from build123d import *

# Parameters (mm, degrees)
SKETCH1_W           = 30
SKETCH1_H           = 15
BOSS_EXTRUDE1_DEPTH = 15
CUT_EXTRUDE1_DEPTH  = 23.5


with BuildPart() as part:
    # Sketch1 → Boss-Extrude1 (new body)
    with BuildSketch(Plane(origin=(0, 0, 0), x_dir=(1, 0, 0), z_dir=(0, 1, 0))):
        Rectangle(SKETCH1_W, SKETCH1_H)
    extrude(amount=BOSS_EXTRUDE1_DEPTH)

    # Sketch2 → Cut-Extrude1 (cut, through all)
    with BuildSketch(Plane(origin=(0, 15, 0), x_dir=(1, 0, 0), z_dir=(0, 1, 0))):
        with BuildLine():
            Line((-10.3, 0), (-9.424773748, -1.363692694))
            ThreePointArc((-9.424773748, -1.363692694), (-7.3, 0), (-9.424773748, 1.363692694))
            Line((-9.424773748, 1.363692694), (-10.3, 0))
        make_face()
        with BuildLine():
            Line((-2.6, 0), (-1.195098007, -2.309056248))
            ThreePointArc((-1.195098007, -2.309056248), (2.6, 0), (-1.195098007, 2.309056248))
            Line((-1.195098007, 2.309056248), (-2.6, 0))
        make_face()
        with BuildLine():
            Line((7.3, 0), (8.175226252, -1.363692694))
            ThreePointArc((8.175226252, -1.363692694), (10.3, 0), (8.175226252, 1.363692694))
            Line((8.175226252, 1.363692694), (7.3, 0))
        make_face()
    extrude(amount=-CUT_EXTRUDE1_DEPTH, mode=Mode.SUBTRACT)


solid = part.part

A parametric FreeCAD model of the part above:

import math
import FreeCAD as App
import Part
import Sketcher


def add_polygon(sketch, points):
    """Adds a closed chain of lines whose ends are joined by coincident constraints."""
    first, n = sketch.GeometryCount, len(points)
    for a, b in zip(points, points[1:] + points[:1]):
        sketch.addGeometry(Part.LineSegment(App.Vector(*a, 0), App.Vector(*b, 0)), False)
    for i in range(n):
        sketch.addConstraint(Sketcher.Constraint("Coincident", first + i, 2, first + (i + 1) % n, 1))

doc = App.newDocument("Part")
body = doc.addObject("PartDesign::Body", "Body")

sketch1 = body.newObject("Sketcher::SketchObject", "Sketch")
sketch1.AttachmentSupport = (doc.getObject("XZ_Plane"), [""])
sketch1.MapMode = "FlatFace"
add_polygon(sketch1, [(-15, -8), (-15, 8), (15, 8), (15, -8)])
sketch1.addConstraint([
    Sketcher.Constraint("Vertical", 0),
    Sketcher.Constraint("Horizontal", 1),
    Sketcher.Constraint("Vertical", 2),
    Sketcher.Constraint("Horizontal", 3),
    Sketcher.Constraint("Symmetric", 0, 2, 2, 2, -1, 1),
    Sketcher.Constraint("DistanceX", 1, 1, 1, 2, 30.0),
    Sketcher.Constraint("DistanceY", 0, 1, 0, 2, 15.0),
])
pad1 = body.newObject("PartDesign::Pad", "Pad")
pad1.Profile = sketch1
pad1.Length = 15
pad1.Reversed = True

sketch2 = body.newObject("Sketcher::SketchObject", "Sketch001")
sketch2.AttachmentSupport = (doc.getObject("XZ_Plane"), [""])
sketch2.MapMode = "FlatFace"
sketch2.AttachmentOffset = App.Placement(App.Vector(0, 0, -15), App.Rotation())
sketch2.addGeometry([
    Part.LineSegment(App.Vector(-10.3, 0, 0), App.Vector(-9.4, 1.4, 0)),
    Part.ArcOfCircle(Part.Circle(App.Vector(-8.8, 0, 0), App.Vector(0, 0, 1), 1.5), math.radians(-115), math.radians(115)),
    Part.LineSegment(App.Vector(-9.4, -1.4, 0), App.Vector(-10.3, 0, 0)),
    Part.LineSegment(App.Vector(-2.6, 0, 0), App.Vector(-1.2, 2.3, 0)),
    Part.ArcOfCircle(Part.Circle(App.Vector(0, 0, 0), App.Vector(0, 0, 1), 2.6), math.radians(-117), math.radians(117)),
    Part.LineSegment(App.Vector(-1.2, -2.3, 0), App.Vector(-2.6, 0, 0)),
    Part.LineSegment(App.Vector(7.3, 0, 0), App.Vector(8.2, 1.4, 0)),
    Part.ArcOfCircle(Part.Circle(App.Vector(8.8, 0, 0), App.Vector(0, 0, 1), 1.5), math.radians(-115), math.radians(115)),
    Part.LineSegment(App.Vector(8.2, -1.4, 0), App.Vector(7.3, 0, 0)),
], False)
sketch2.addConstraint([
    Sketcher.Constraint("Coincident", 0, 2, 1, 2),
    Sketcher.Constraint("Coincident", 1, 1, 2, 1),
    Sketcher.Constraint("Coincident", 2, 2, 0, 1),
    Sketcher.Constraint("Coincident", 3, 2, 4, 2),
    Sketcher.Constraint("Coincident", 4, 1, 5, 1),
    Sketcher.Constraint("Coincident", 5, 2, 3, 1),
    Sketcher.Constraint("Coincident", 6, 2, 7, 2),
    Sketcher.Constraint("Coincident", 7, 1, 8, 1),
    Sketcher.Constraint("Coincident", 8, 2, 6, 1),
    Sketcher.Constraint("Coincident", 4, 3, -1, 1),
    Sketcher.Constraint("Equal", 1, 7),
    Sketcher.Constraint("Symmetric", 1, 3, 7, 3, -1, 1),
    Sketcher.Constraint("Symmetric", 0, 2, 1, 1, -1),
    Sketcher.Constraint("PointOnObject", 2, 2, -1),
    Sketcher.Constraint("PointOnObject", 5, 2, -1),
    Sketcher.Constraint("PointOnObject", 8, 2, -1),
    Sketcher.Constraint("Parallel", 0, 6),
    Sketcher.Constraint("Parallel", 2, 8),
    Sketcher.Constraint("Horizontal", 0, 2, 6, 2),
    Sketcher.Constraint("Vertical", 3, 2, 4, 1),
    Sketcher.Constraint("Radius", 1, 1.5),
    Sketcher.Constraint("Radius", 4, 2.6),
    Sketcher.Constraint("DistanceX", 1, 3, -1, 1, 8.8),
    Sketcher.Constraint("DistanceX", 2, 2, -1, 1, 10.3),
    Sketcher.Constraint("DistanceX", 5, 2, -1, 1, 2.6),
    Sketcher.Constraint("DistanceX", 3, 2, -1, 1, 1.195098),
    Sketcher.Constraint("DistanceY", 1, 1, 3, 2, 3.672749),
])
pocket1 = body.newObject("PartDesign::Pocket", "Pocket")
pocket1.Profile = sketch2
pocket1.Type = "ThroughAll"
pocket1.Reversed = True

doc.recompute()
